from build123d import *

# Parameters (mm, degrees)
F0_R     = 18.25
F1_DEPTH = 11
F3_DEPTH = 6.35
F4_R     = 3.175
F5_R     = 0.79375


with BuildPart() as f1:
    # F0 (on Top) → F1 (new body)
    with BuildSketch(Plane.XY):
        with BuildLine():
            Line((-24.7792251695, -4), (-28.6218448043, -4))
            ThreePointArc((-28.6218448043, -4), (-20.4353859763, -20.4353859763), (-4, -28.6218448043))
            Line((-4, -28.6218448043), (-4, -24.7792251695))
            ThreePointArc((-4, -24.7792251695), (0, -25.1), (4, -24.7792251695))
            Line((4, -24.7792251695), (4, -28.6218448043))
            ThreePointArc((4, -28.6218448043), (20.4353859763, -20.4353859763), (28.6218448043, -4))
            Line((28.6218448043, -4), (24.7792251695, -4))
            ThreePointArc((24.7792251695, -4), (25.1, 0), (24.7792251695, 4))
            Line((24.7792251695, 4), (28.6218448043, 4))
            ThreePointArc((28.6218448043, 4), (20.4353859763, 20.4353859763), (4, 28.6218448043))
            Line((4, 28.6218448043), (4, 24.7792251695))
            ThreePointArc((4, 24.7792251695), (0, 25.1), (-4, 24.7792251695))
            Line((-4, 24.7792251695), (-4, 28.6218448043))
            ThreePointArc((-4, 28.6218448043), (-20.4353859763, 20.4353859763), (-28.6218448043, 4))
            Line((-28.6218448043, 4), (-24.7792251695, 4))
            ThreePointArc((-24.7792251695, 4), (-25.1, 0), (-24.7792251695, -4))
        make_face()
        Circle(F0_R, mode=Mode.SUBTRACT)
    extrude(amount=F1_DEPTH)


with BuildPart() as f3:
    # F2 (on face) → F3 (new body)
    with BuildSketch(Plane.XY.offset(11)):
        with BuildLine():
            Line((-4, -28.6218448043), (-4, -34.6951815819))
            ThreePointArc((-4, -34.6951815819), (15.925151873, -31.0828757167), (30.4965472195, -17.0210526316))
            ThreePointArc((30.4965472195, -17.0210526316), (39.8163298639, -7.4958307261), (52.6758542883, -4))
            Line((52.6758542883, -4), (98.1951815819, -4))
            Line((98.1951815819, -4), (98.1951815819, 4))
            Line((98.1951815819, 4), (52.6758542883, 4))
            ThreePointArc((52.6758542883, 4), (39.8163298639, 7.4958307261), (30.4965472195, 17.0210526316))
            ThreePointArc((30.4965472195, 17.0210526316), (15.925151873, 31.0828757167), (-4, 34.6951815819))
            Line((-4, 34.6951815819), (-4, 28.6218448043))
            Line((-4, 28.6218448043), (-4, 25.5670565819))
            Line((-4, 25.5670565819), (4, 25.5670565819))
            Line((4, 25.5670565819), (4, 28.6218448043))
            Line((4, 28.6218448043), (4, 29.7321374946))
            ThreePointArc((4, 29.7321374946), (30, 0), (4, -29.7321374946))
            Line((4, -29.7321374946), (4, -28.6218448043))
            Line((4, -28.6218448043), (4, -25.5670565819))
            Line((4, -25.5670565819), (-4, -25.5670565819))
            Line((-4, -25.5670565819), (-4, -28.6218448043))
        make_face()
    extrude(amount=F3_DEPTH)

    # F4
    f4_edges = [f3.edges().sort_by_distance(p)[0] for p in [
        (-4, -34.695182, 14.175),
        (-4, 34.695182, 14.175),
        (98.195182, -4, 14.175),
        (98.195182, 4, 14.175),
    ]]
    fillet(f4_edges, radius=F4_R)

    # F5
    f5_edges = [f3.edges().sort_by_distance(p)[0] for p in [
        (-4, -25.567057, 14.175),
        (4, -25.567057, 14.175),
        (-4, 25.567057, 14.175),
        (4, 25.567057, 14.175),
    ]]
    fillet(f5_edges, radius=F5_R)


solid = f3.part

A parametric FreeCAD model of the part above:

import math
import FreeCAD as App
import Part
import Sketcher
from FreeCAD import Vector
Q = App.Units.Quantity


def edges_at(feature, points):
    """Names of the edges that pass closest to the given points."""
    edges = feature.Shape.Edges
    near = lambda p: min(range(len(edges)), key=lambda i: edges[i].distToShape(Part.Vertex(*p))[0])
    return sorted({f"Edge{near(p) + 1}" for p in points})

doc = App.newDocument("Part")
body = doc.addObject("PartDesign::Body", "Body")

# Sketch on XY plane
sketch1 = body.newObject("Sketcher::SketchObject", "Sketch")
sketch1.AttachmentSupport = (doc.getObject("XY_Plane"), [""])
sketch1.MapMode = "FlatFace"
sketch1.addGeometry([
    Part.LineSegment(Vector(-24.8, -4, 0), Vector(-28.6, -4, 0)),  # 0
    Part.ArcOfCircle(Part.Circle(Vector(0, 0, 0), Vector(0, 0, 1), 28.9), math.radians(-172), math.radians(-98)),  # 1
    Part.LineSegment(Vector(-4, -28.6, 0), Vector(-4, -24.8, 0)),  # 2
    Part.ArcOfCircle(Part.Circle(Vector(0, 0, 0), Vector(0, 0, 1), 25.1), math.radians(-99.17), math.radians(-80.83)),  # 3
    Part.LineSegment(Vector(4, -24.8, 0), Vector(4, -28.6, 0)),  # 4
    Part.ArcOfCircle(Part.Circle(Vector(0, 0, 0), Vector(0, 0, 1), 28.9), math.radians(-82), math.radians(-8)),  # 5
    Part.LineSegment(Vector(28.6, -4, 0), Vector(24.8, -4, 0)),  # 6
    Part.ArcOfCircle(Part.Circle(Vector(0, 0, 0), Vector(0, 0, 1), 25.1), math.radians(-9.17), math.radians(9.17)),  # 7
    Part.LineSegment(Vector(24.8, 4, 0), Vector(28.6, 4, 0)),  # 8
    Part.ArcOfCircle(Part.Circle(Vector(0, 0, 0), Vector(0, 0, 1), 28.9), math.radians(8), math.radians(82)),  # 9
    Part.LineSegment(Vector(4, 28.6, 0), Vector(4, 24.8, 0)),  # 10
    Part.ArcOfCircle(Part.Circle(Vector(0, 0, 0), Vector(0, 0, 1), 25.1), math.radians(80.83), math.radians(99.17)),  # 11
    Part.LineSegment(Vector(-4, 24.8, 0), Vector(-4, 28.6, 0)),  # 12
    Part.ArcOfCircle(Part.Circle(Vector(0, 0, 0), Vector(0, 0, 1), 28.9), math.radians(98), math.radians(172)),  # 13
    Part.LineSegment(Vector(-28.6, 4, 0), Vector(-24.8, 4, 0)),  # 14
    Part.ArcOfCircle(Part.Circle(Vector(0, 0, 0), Vector(0, 0, 1), 25.1), math.radians(170.83), math.radians(189.17)),  # 15
    Part.Circle(Vector(0, 0, 0), Vector(0, 0, 1), 18.2),  # 16
], False)
sketch1.addConstraint([
    Sketcher.Constraint("Coincident", 0, 2, 1, 1),
    Sketcher.Constraint("Coincident", 1, 2, 2, 1),
    Sketcher.Constraint("Coincident", 2, 2, 3, 1),
    Sketcher.Constraint("Coincident", 3, 2, 4, 1),
    Sketcher.Constraint("Coincident", 4, 2, 5, 1),
    Sketcher.Constraint("Coincident", 5, 2, 6, 1),
    Sketcher.Constraint("Coincident", 6, 2, 7, 1),
    Sketcher.Constraint("Coincident", 7, 2, 8, 1),
    Sketcher.Constraint("Coincident", 8, 2, 9, 1),
    Sketcher.Constraint("Coincident", 9, 2, 10, 1),
    Sketcher.Constraint("Coincident", 10, 2, 11, 1),
    Sketcher.Constraint("Coincident", 11, 2, 12, 1),
    Sketcher.Constraint("Coincident", 12, 2, 13, 1),
    Sketcher.Constraint("Coincident", 13, 2, 14, 1),
    Sketcher.Constraint("Coincident", 14, 2, 15, 1),
    Sketcher.Constraint("Coincident", 15, 2, 0, 1),
    Sketcher.Constraint("Horizontal", 0),
    Sketcher.Constraint("Vertical", 2),
    Sketcher.Constraint("Vertical", 4),
    Sketcher.Constraint("Horizontal", 6),
    Sketcher.Constraint("Horizontal", 8),
    Sketcher.Constraint("Vertical", 10),
    Sketcher.Constraint("Vertical", 12),
    Sketcher.Constraint("Horizontal", 14),
    Sketcher.Constraint("Coincident", 1, 3, -1, 1),
    Sketcher.Constraint("Coincident", 3, 3, -1, 1),
    Sketcher.Constraint("Coincident", 5, 3, -1, 1),
    Sketcher.Constraint("Coincident", 7, 3, -1, 1),
    Sketcher.Constraint("Coincident", 9, 3, -1, 1),
    Sketcher.Constraint("Coincident", 11, 3, -1, 1),
    Sketcher.Constraint("Coincident", 13, 3, -1, 1),
    Sketcher.Constraint("Coincident", 15, 3, -1, 1),
    Sketcher.Constraint("Coincident", 16, 3, -1, 1),
    Sketcher.Constraint("Equal", 1, 5),
    Sketcher.Constraint("Equal", 3, 7),
    Sketcher.Constraint("Equal", 5, 9),
    Sketcher.Constraint("Equal", 7, 11),
    Sketcher.Constraint("Equal", 9, 13),
    Sketcher.Constraint("Equal", 11, 15),
    Sketcher.Constraint("Horizontal", 2, 2, 3, 2),
    Sketcher.Constraint("Horizontal", 0, 2, 5, 2),
    Sketcher.Constraint("Horizontal", 10, 2, 11, 2),
    Sketcher.Constraint("Horizontal", 8, 2, 13, 2),
    Sketcher.Constraint("Vertical", 6, 2, 7, 2),
    Sketcher.Constraint("Vertical", 4, 2, 9, 2),
    Sketcher.Constraint("Equal", 14, 2),
    Sketcher.Constraint("Diameter", 16, Q("36.5 mm")),
    Sketcher.Constraint("Radius", 1, Q("28.9 mm")),
    Sketcher.Constraint("Radius", 3, Q("25.1 mm")),
    Sketcher.Constraint("DistanceY", 0, 2, -1, 1, Q("4 mm")),
])
pad1 = body.newObject("PartDesign::Pad", "Pad")
pad1.Profile = sketch1
pad1.Length = 11
body2 = doc.addObject("PartDesign::Body", "Body001")

# Sketch on XY plane
sketch2 = body2.newObject("Sketcher::SketchObject", "Sketch001")
sketch2.AttachmentSupport = (doc.getObject("XY_Plane001"), [""])
sketch2.MapMode = "FlatFace"
sketch2.AttachmentOffset = App.Placement(Vector(0, 0, 11), App.Rotation())
sketch2.addGeometry([
    Part.ArcOfCircle(Part.Circle(Vector(0, 0, 0), Vector(0, 0, 1), 34.9), math.radians(-97), math.radians(-29)),  # 0
    Part.ArcOfCircle(Part.Circle(Vector(52.7, -29.4, 0), Vector(0, 0, 1), 25.4), math.radians(90), math.radians(151)),  # 1
    Part.LineSegment(Vector(52.7, -4, 0), Vector(98.2, -4, 0)),  # 2
    Part.LineSegment(Vector(98.2, -4, 0), Vector(98.2, 4, 0)),  # 3
    Part.LineSegment(Vector(98.2, 4, 0), Vector(52.7, 4, 0)),  # 4
    Part.ArcOfCircle(Part.Circle(Vector(52.7, 29.4, 0), Vector(0, 0, 1), 25.4), math.radians(-151), math.radians(-90)),  # 5
    Part.ArcOfCircle(Part.Circle(Vector(0, 0, 0), Vector(0, 0, 1), 34.9), math.radians(29), math.radians(97)),  # 6
    Part.LineSegment(Vector(-4, 34.7, 0), Vector(-4, 25.6, 0)),  # 7
    Part.LineSegment(Vector(-4, 25.6, 0), Vector(4, 25.6, 0)),  # 8
    Part.LineSegment(Vector(4, 25.6, 0), Vector(4, 29.7, 0)),  # 9
    Part.ArcOfCircle(Part.Circle(Vector(0, 0, 0), Vector(0, 0, 1), 30), math.radians(-82), math.radians(82)),  # 10
    Part.LineSegment(Vector(4, -29.7, 0), Vector(4, -25.6, 0)),  # 11
    Part.LineSegment(Vector(4, -25.6, 0), Vector(-4, -25.6, 0)),  # 12
    Part.LineSegment(Vector(-4, -25.6, 0), Vector(-4, -34.7, 0)),  # 13
], False)
sketch2.addConstraint([
    Sketcher.Constraint("Tangent", 0, 2, 1, 2),
    Sketcher.Constraint("Tangent", 1, 1, 2, 1),
    Sketcher.Constraint("Coincident", 2, 2, 3, 1),
    Sketcher.Constraint("Coincident", 3, 2, 4, 1),
    Sketcher.Constraint("Tangent", 4, 2, 5, 2),
    Sketcher.Constraint("Tangent", 5, 1, 6, 1),
    Sketcher.Constraint("Coincident", 6, 2, 7, 1),
    Sketcher.Constraint("Coincident", 7, 2, 8, 1),
    Sketcher.Constraint("Coincident", 8, 2, 9, 1),
    Sketcher.Constraint("Coincident", 9, 2, 10, 2),
    Sketcher.Constraint("Coincident", 10, 1, 11, 1),
    Sketcher.Constraint("Coincident", 11, 2, 12, 1),
    Sketcher.Constraint("Coincident", 12, 2, 13, 1),
    Sketcher.Constraint("Coincident", 13, 2, 0, 1),
    Sketcher.Constraint("Horizontal", 2),
    Sketcher.Constraint("Vertical", 3),
    Sketcher.Constraint("Horizontal", 4),
    Sketcher.Constraint("Vertical", 7),
    Sketcher.Constraint("Horizontal", 8),
    Sketcher.Constraint("Vertical", 9),
    Sketcher.Constraint("Vertical", 11),
    Sketcher.Constraint("Horizontal", 12),
    Sketcher.Constraint("Vertical", 13),
    Sketcher.Constraint("Coincident", 0, 3, -1, 1),
    Sketcher.Constraint("Coincident", 6, 3, -1, 1),
    Sketcher.Constraint("Coincident", 10, 3, -1, 1),
    Sketcher.Constraint("Equal", 1, 5),
    Sketcher.Constraint("Equal", 0, 6),
    Sketcher.Constraint("Symmetric", 7, 2, 11, 2, -1, 1),
    Sketcher.Constraint("Vertical", 1, 3, 5, 3),
    Sketcher.Constraint("Vertical", 9, 2, 10, 1),
    Sketcher.Constraint("Vertical", 7, 2, 12, 2),
    Sketcher.Constraint("Equal", 12, 3),
    Sketcher.Constraint("Radius", 10, Q("30 mm")),
    Sketcher.Constraint("Radius", 1, Q("25.4 mm")),
    Sketcher.Constraint("DistanceX", 8, 1, 8, 2, Q("8 mm")),
    Sketcher.Constraint("Radius", 0, Q("34.925 mm")),
    Sketcher.Constraint("DistanceY", 9, 1, 9, 2, Q("4.165081 mm")),
    Sketcher.Constraint("DistanceX", 2, 1, 2, 2, Q("45.519327 mm")),
])
pad2 = body2.newObject("PartDesign::Pad", "Pad001")
pad2.Profile = sketch2
pad2.Length = 6.35
doc.recompute()

fillet = body2.newObject("PartDesign::Fillet", "Fillet")
fillet.Base = (pad2, edges_at(pad2, [
    (-4, -34.695, 14.175),
    (-4, 34.695, 14.175),
    (98.195, -4, 14.175),
    (98.195, 4, 14.175),
]))
fillet.Radius = 3.175
doc.recompute()

fillet2 = body2.newObject("PartDesign::Fillet", "Fillet001")
fillet2.Base = (fillet, edges_at(fillet, [
    (-4, -25.567, 14.175),
    (4, -25.567, 14.175),
    (-4, 25.567, 14.175),
    (4, 25.567, 14.175),
]))
fillet2.Radius = 0.79375
body.Visibility = False

doc.recompute()
